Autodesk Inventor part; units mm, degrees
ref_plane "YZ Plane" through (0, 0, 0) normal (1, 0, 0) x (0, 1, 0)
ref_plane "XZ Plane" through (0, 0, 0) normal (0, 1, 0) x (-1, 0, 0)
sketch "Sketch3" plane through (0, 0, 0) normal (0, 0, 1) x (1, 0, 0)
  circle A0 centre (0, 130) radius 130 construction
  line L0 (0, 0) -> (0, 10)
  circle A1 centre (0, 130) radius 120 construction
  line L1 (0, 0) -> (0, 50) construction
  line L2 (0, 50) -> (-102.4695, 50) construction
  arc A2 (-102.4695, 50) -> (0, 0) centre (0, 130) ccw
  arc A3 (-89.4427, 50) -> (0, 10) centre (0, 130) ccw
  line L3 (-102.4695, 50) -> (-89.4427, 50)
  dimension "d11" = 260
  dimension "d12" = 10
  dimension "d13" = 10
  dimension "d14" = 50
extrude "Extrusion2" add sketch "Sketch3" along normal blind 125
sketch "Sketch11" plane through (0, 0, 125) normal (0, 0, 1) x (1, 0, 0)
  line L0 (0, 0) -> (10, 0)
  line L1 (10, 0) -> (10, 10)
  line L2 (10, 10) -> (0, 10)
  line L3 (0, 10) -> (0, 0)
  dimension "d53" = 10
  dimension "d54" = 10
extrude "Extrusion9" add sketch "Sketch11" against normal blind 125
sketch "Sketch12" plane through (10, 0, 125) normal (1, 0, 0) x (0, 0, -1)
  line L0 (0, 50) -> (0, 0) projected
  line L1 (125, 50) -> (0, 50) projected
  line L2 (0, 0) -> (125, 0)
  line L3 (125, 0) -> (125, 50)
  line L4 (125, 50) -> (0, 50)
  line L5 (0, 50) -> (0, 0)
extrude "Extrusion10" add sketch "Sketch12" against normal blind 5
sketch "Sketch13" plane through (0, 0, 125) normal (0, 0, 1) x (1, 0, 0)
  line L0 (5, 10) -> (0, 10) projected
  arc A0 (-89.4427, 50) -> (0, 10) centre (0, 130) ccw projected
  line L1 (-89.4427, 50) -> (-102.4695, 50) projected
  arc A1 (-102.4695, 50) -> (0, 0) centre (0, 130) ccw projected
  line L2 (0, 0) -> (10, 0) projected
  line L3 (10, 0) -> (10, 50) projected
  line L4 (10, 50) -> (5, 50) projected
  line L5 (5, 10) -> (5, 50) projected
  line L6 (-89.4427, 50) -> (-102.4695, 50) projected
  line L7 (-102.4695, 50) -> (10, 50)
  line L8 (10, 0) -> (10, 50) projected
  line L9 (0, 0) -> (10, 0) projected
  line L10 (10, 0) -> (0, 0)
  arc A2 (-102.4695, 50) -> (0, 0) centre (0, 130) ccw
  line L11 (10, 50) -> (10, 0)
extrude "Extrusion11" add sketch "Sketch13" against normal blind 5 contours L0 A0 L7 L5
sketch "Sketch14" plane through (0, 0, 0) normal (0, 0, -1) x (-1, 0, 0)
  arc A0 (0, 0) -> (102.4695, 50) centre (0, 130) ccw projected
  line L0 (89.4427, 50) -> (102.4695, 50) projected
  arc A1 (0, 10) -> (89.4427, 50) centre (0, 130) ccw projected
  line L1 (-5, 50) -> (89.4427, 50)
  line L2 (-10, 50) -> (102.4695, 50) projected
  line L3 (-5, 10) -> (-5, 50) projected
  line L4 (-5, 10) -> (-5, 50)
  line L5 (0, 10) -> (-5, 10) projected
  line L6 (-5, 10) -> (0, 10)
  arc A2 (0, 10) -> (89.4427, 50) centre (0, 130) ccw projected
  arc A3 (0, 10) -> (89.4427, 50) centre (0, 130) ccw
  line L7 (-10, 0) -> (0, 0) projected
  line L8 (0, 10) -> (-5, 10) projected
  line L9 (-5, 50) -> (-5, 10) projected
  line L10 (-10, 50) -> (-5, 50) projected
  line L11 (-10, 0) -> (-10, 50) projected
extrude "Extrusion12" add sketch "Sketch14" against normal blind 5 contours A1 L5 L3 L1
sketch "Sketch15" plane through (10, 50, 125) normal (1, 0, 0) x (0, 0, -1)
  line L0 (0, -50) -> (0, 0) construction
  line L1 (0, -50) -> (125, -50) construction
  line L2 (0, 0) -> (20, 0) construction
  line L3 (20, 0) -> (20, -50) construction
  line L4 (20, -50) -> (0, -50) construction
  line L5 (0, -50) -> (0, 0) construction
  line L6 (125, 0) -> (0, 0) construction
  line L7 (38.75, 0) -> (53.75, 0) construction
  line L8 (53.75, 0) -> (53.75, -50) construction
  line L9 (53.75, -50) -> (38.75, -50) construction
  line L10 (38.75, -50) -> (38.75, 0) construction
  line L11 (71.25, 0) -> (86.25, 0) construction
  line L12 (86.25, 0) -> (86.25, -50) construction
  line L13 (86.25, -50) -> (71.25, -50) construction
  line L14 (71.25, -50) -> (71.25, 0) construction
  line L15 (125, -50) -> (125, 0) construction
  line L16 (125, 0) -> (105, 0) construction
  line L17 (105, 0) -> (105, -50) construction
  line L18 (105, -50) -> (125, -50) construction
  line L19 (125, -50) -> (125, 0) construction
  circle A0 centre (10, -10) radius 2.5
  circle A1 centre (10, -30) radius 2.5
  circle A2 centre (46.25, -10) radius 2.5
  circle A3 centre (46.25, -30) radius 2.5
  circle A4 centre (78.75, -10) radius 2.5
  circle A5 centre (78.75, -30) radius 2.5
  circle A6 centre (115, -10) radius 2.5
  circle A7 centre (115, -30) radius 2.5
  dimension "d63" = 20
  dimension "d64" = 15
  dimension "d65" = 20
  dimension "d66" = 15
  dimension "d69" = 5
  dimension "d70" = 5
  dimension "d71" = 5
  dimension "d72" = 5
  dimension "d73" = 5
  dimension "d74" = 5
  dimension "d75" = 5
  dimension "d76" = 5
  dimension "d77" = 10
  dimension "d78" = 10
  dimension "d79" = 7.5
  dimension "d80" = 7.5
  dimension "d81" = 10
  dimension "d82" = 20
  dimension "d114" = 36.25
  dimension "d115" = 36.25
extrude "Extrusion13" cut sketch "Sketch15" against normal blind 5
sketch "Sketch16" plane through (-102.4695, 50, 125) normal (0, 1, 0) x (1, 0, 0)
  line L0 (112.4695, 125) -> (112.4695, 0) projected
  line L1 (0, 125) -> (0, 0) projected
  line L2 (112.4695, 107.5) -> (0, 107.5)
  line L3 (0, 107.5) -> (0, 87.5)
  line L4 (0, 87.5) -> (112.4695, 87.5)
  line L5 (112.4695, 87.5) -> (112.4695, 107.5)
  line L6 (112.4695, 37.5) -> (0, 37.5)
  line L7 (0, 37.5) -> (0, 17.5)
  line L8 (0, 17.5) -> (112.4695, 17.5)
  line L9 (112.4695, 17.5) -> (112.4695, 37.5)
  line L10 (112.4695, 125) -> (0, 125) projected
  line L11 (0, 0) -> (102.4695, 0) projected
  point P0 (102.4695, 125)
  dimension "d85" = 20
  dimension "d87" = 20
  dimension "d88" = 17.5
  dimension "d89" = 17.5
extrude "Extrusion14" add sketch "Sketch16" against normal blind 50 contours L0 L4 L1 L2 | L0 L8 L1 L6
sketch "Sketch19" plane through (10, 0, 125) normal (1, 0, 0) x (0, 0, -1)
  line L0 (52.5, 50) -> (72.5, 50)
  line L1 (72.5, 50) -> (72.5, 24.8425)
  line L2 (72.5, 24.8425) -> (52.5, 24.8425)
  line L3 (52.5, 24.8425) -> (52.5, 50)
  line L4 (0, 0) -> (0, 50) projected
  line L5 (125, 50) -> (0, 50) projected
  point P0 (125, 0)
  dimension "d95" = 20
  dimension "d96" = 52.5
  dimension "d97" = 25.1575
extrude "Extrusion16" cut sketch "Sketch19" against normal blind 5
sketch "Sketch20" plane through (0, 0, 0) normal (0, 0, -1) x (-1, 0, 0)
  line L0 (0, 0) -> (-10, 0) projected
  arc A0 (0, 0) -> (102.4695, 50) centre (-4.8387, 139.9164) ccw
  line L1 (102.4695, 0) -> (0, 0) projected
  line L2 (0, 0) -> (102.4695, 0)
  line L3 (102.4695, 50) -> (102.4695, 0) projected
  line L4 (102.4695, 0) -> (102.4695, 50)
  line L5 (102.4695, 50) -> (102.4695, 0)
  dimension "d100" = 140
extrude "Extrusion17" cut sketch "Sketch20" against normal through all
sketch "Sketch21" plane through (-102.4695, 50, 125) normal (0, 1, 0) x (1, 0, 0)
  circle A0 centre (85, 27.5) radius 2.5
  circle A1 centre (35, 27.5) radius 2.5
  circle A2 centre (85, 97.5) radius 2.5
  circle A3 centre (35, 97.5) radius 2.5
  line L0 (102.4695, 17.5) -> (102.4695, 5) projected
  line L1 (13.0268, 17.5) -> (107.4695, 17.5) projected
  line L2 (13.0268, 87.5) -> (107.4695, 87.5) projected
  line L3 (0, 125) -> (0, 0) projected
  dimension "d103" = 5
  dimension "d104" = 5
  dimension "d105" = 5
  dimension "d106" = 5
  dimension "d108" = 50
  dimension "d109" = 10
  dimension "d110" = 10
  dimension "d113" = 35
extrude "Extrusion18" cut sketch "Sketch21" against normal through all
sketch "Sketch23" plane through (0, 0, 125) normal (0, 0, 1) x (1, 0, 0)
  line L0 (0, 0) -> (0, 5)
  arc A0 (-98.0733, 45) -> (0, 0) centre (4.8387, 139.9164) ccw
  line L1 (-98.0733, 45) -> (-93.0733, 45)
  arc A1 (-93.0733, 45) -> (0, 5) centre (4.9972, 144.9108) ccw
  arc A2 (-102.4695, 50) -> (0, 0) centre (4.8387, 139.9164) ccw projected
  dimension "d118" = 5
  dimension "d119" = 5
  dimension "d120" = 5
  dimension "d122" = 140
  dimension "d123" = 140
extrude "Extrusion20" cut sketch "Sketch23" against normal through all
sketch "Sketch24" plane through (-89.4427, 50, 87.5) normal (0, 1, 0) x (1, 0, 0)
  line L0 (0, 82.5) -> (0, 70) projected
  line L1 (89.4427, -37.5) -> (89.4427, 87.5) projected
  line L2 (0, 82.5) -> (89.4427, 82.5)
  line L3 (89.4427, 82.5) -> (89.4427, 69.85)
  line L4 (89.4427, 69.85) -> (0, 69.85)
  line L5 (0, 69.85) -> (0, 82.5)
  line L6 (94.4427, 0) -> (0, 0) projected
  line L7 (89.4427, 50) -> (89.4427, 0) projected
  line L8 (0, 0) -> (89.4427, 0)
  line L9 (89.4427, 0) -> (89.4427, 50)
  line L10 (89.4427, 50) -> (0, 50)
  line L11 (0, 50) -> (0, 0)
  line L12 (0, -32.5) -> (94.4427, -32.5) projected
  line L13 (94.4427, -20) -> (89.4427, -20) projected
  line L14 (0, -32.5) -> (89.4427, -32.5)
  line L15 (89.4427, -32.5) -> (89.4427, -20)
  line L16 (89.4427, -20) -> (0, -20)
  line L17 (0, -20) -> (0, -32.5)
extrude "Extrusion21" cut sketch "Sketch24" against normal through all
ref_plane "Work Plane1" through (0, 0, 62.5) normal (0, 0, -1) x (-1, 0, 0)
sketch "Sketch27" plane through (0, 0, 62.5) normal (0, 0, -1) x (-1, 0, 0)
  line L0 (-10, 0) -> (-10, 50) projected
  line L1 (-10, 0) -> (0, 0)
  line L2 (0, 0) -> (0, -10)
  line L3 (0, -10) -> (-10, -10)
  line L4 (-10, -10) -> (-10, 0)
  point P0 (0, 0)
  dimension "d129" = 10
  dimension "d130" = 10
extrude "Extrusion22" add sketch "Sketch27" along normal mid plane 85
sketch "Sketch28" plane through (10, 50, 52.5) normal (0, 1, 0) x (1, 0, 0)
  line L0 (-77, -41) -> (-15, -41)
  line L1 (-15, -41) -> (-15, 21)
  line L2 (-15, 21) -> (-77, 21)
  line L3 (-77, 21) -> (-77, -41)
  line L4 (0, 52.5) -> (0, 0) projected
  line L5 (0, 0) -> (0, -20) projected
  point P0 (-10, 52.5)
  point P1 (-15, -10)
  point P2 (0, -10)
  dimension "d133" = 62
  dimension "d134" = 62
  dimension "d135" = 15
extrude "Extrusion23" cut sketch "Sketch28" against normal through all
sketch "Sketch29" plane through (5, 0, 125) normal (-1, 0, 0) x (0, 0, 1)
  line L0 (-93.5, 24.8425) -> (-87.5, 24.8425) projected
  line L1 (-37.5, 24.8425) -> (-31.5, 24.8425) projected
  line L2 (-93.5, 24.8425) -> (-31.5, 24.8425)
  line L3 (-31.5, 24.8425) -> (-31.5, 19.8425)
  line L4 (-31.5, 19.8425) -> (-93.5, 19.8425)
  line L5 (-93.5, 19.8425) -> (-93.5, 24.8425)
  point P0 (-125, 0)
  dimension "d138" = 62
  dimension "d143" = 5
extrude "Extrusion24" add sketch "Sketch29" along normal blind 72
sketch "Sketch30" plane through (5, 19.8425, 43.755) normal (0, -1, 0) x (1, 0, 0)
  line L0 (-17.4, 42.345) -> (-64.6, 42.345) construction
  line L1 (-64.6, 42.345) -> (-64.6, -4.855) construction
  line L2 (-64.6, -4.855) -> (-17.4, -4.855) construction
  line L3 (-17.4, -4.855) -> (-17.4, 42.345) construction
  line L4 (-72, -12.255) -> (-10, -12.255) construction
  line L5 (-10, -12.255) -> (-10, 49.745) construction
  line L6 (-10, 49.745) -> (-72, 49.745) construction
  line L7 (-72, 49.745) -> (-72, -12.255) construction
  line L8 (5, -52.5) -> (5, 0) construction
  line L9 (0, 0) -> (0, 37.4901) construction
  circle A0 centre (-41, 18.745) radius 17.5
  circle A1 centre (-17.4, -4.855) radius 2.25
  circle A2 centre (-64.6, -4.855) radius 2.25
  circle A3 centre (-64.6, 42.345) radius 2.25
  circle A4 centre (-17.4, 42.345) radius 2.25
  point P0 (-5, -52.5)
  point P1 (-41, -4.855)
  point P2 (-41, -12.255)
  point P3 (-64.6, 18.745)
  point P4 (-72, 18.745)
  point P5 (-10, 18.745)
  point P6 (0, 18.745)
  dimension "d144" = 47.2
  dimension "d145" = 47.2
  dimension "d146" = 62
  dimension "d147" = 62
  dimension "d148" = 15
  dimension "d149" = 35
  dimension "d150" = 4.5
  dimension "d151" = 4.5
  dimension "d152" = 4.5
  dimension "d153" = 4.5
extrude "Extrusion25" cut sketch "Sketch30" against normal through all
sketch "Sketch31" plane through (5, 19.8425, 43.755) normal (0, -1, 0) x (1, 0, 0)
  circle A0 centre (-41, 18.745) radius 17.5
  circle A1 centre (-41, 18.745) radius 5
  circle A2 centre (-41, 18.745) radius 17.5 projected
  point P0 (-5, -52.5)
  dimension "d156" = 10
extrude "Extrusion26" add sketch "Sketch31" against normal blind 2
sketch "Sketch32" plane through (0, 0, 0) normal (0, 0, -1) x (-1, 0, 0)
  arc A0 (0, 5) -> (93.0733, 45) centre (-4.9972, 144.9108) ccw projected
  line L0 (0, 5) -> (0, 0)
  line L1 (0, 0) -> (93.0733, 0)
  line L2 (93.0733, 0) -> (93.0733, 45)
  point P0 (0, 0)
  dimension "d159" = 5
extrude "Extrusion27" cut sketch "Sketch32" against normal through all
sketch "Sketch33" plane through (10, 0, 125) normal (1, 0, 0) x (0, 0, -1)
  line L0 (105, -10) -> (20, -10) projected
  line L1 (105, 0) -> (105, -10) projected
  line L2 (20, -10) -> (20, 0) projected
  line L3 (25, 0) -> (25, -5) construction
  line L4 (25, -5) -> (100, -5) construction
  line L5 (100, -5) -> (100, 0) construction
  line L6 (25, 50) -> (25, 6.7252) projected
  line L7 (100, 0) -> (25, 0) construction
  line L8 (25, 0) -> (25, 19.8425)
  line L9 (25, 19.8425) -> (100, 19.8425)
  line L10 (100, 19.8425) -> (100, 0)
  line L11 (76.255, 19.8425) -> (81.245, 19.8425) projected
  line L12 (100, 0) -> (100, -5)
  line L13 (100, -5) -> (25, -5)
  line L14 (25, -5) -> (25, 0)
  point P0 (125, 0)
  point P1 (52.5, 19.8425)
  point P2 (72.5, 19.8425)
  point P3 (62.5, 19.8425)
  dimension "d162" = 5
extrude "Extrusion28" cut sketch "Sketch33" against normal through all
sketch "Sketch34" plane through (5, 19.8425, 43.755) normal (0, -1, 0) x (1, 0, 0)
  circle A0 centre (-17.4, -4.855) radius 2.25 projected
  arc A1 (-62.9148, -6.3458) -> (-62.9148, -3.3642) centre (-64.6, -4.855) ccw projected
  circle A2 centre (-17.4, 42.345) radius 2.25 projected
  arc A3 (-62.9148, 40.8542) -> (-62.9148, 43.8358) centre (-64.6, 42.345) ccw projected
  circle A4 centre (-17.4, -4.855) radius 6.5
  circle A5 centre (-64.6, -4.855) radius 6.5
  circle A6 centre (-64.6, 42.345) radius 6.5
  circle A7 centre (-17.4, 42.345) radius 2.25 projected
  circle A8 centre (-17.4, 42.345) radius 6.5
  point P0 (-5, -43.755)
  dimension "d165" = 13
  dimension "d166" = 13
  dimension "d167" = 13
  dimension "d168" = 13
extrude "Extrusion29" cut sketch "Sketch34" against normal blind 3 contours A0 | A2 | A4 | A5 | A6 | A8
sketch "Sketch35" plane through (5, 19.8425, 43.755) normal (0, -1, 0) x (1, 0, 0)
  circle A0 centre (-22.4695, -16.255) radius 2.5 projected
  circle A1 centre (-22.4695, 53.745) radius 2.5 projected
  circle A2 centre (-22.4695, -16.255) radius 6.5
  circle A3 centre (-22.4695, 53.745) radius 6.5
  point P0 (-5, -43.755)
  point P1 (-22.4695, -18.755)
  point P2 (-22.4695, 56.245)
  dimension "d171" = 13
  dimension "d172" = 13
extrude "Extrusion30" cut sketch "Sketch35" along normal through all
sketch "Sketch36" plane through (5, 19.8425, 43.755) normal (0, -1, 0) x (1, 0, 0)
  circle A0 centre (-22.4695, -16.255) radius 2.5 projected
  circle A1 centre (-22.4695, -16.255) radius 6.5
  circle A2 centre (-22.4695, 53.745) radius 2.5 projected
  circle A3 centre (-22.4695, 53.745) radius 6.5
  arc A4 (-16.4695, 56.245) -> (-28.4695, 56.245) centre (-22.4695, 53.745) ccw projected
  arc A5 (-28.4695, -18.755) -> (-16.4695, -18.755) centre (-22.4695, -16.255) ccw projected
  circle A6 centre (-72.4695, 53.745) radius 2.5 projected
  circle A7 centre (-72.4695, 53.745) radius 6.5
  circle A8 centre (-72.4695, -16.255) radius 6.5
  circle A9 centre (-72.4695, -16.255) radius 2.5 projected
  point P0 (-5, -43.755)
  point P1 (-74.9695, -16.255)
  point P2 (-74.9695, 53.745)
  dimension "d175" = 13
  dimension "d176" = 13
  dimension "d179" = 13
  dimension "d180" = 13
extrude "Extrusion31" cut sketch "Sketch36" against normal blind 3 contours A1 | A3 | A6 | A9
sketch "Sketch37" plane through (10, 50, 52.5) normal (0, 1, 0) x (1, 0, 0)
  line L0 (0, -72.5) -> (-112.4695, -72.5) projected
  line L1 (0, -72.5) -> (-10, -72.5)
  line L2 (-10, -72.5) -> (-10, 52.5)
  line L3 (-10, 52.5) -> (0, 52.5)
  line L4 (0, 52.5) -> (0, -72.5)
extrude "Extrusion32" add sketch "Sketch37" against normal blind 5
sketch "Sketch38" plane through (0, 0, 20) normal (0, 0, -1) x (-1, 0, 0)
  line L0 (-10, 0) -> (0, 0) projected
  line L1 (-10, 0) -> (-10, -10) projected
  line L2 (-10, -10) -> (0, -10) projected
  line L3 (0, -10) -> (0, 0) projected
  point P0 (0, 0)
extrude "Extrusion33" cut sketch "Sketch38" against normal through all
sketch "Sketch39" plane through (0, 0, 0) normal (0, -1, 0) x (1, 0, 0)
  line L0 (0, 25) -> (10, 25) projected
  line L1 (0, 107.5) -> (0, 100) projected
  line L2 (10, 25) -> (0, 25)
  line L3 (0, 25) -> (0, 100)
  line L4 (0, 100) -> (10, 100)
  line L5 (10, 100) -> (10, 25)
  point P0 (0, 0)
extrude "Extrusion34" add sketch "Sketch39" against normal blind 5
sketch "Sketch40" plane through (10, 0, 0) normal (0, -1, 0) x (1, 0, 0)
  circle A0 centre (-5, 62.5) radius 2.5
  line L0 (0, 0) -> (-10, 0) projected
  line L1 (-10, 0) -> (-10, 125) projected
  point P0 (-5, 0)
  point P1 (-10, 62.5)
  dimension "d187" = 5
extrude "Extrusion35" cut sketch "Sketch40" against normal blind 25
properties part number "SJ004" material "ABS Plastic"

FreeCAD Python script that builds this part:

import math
import FreeCAD as App
import Part
import Sketcher

V = App.Vector


def add_polygon(sketch, points):
    """Adds a closed chain of lines whose ends are joined by coincident constraints."""
    first, n = sketch.GeometryCount, len(points)
    for a, b in zip(points, points[1:] + points[:1]):
        sketch.addGeometry(Part.LineSegment(App.Vector(*a, 0), App.Vector(*b, 0)), False)
    for i in range(n):
        sketch.addConstraint(Sketcher.Constraint("Coincident", first + i, 2, first + (i + 1) % n, 1))

doc = App.newDocument("Part")
body = doc.addObject("PartDesign::Body", "Body")

# Sketch on XY plane
sketch1 = body.newObject("Sketcher::SketchObject", "Sketch")
sketch1.AttachmentSupport = (doc.getObject("XY_Plane"), [""])
sketch1.MapMode = "FlatFace"
sketch1.addGeometry([
    Part.ArcOfCircle(Part.Circle(V(0, 130, 0), V(0, 0, 1), 130), math.radians(-142), math.radians(-90)),
    Part.LineSegment(V(0, 0, 0), V(0, 10, 0)),
    Part.ArcOfCircle(Part.Circle(V(0, 130, 0), V(0, 0, 1), 120), math.radians(-138), math.radians(-90)),
    Part.LineSegment(V(-89, 50, 0), V(-102, 50, 0)),
], False)
sketch1.addConstraint([
    Sketcher.Constraint("Coincident", 0, 2, 1, 1),
    Sketcher.Constraint("Coincident", 1, 2, 2, 2),
    Sketcher.Constraint("Coincident", 2, 1, 3, 1),
    Sketcher.Constraint("Coincident", 3, 2, 0, 1),
    Sketcher.Constraint("Vertical", 1),
    Sketcher.Constraint("Horizontal", 3),
    Sketcher.Constraint("Coincident", 0, 2, -1, 1),
    Sketcher.Constraint("Coincident", 2, 3, 0, 3),
    Sketcher.Constraint("PointOnObject", 0, 3, -2),
    Sketcher.Constraint("Radius", 0, 130.0),
    Sketcher.Constraint("DistanceY", 1, 1, 1, 2, 10.0),
    Sketcher.Constraint("DistanceY", -1, 1, 2, 1, 50.0),
])
pad1 = body.newObject("PartDesign::Pad", "Pad")
pad1.Profile = sketch1
pad1.Length = 125

# Sketch on XY plane
sketch2 = body.newObject("Sketcher::SketchObject", "Sketch001")
sketch2.AttachmentSupport = (doc.getObject("XY_Plane"), [""])
sketch2.MapMode = "FlatFace"
sketch2.AttachmentOffset = App.Placement(V(0, 0, 125), App.Rotation())
add_polygon(sketch2, [(0, 10), (0, 0), (10, 0), (10, 10)])  # lines 0-3
sketch2.addConstraint([
    Sketcher.Constraint("Vertical", 0),
    Sketcher.Constraint("Horizontal", 1),
    Sketcher.Constraint("Vertical", 2),
    Sketcher.Constraint("Horizontal", 3),
    Sketcher.Constraint("Coincident", 0, 2, -1, 1),
    Sketcher.Constraint("Equal", 3, 0),
    Sketcher.Constraint("DistanceX", 1, 1, 1, 2, 10.0),
])
pad2 = body.newObject("PartDesign::Pad", "Pad001")
pad2.Profile = sketch2
pad2.Length = 125
pad2.Reversed = True

# Sketch on YZ plane
sketch3 = body.newObject("Sketcher::SketchObject", "Sketch002")
sketch3.AttachmentSupport = (doc.getObject("YZ_Plane"), [""])
sketch3.MapMode = "FlatFace"
sketch3.AttachmentOffset = App.Placement(V(0, 0, 10), App.Rotation())
add_polygon(sketch3, [(50, 0), (50, 125), (0, 125), (0, 0)])  # lines 0-3
sketch3.addConstraint([
    Sketcher.Constraint("Vertical", 0),
    Sketcher.Constraint("Horizontal", 1),
    Sketcher.Constraint("Vertical", 2),
    Sketcher.Constraint("Horizontal", 3),
    Sketcher.Constraint("Coincident", 2, 2, -1, 1),
    Sketcher.Constraint("DistanceX", 1, 2, 1, 1, 50.0),
    Sketcher.Constraint("DistanceY", 0, 1, 0, 2, 125.0),
])
pad3 = body.newObject("PartDesign::Pad", "Pad002")
pad3.Profile = sketch3
pad3.Length = 5
pad3.Reversed = True

# Sketch on XY plane
sketch4 = body.newObject("Sketcher::SketchObject", "Sketch003")
sketch4.AttachmentSupport = (doc.getObject("XY_Plane"), [""])
sketch4.MapMode = "FlatFace"
sketch4.AttachmentOffset = App.Placement(V(0, 0, 125), App.Rotation())
sketch4.addGeometry([
    Part.LineSegment(V(0, 10, 0), V(5, 10, 0)),
    Part.LineSegment(V(5, 10, 0), V(5, 50, 0)),
    Part.LineSegment(V(5, 50, 0), V(-89, 50, 0)),
    Part.ArcOfCircle(Part.Circle(V(0, 130, 0), V(0, 0, 1), 120), math.radians(-138), math.radians(-90)),
], False)
sketch4.addConstraint([
    Sketcher.Constraint("Coincident", 0, 2, 1, 1),
    Sketcher.Constraint("Coincident", 1, 2, 2, 1),
    Sketcher.Constraint("Coincident", 2, 2, 3, 1),
    Sketcher.Constraint("Tangent", 3, 2, 0, 1),
    Sketcher.Constraint("Horizontal", 0),
    Sketcher.Constraint("Vertical", 1),
    Sketcher.Constraint("Horizontal", 2),
    Sketcher.Constraint("PointOnObject", 3, 3, -2),
    Sketcher.Constraint("Radius", 3, 120.0),
    Sketcher.Constraint("DistanceX", 0, 1, 0, 2, 5.0),
    Sketcher.Constraint("DistanceY", 1, 1, 1, 2, 40.0),
    Sketcher.Constraint("DistanceY", -1, 1, 3, 3, 130.0),
])
pad4 = body.newObject("PartDesign::Pad", "Pad003")
pad4.Profile = sketch4
pad4.Length = 5
pad4.Reversed = True

# Sketch on XY plane
sketch5 = body.newObject("Sketcher::SketchObject", "Sketch004")
sketch5.AttachmentSupport = (doc.getObject("XY_Plane"), [""])
sketch5.MapMode = "FlatFace"
sketch5.addGeometry([
    Part.ArcOfCircle(Part.Circle(V(0, 130, 0), V(0, 0, 1), 120), math.radians(-138), math.radians(-90)),
    Part.LineSegment(V(-89, 50, 0), V(5, 50, 0)),
    Part.LineSegment(V(5, 50, 0), V(5, 10, 0)),
    Part.LineSegment(V(5, 10, 0), V(0, 10, 0)),
], False)
sketch5.addConstraint([
    Sketcher.Constraint("Coincident", 0, 1, 1, 1),
    Sketcher.Constraint("Coincident", 1, 2, 2, 1),
    Sketcher.Constraint("Coincident", 2, 2, 3, 1),
    Sketcher.Constraint("Tangent", 3, 2, 0, 2),
    Sketcher.Constraint("Horizontal", 1),
    Sketcher.Constraint("Vertical", 2),
    Sketcher.Constraint("Horizontal", 3),
    Sketcher.Constraint("PointOnObject", 0, 3, -2),
    Sketcher.Constraint("Radius", 0, 120.0),
    Sketcher.Constraint("DistanceX", 3, 2, 3, 1, 5.0),
    Sketcher.Constraint("DistanceY", 2, 2, 2, 1, 40.0),
    Sketcher.Constraint("DistanceY", -1, 1, 0, 3, 130.0),
])
pad5 = body.newObject("PartDesign::Pad", "Pad004")
pad5.Profile = sketch5
pad5.Length = 5

# Sketch on YZ plane
sketch6 = body.newObject("Sketcher::SketchObject", "Sketch005")
sketch6.AttachmentSupport = (doc.getObject("YZ_Plane"), [""])
sketch6.MapMode = "FlatFace"
sketch6.AttachmentOffset = App.Placement(V(0, 0, 10), App.Rotation())
sketch6.addGeometry([
    Part.Circle(V(40, 115, 0), V(0, 0, 1), 2.5),  # 0
    Part.Circle(V(20, 115, 0), V(0, 0, 1), 2.5),  # 1
    Part.Circle(V(40, 78.8, 0), V(0, 0, 1), 2.5),  # 2
    Part.Circle(V(20, 78.8, 0), V(0, 0, 1), 2.5),  # 3
    Part.Circle(V(40, 46.2, 0), V(0, 0, 1), 2.5),  # 4
    Part.Circle(V(20, 46.2, 0), V(0, 0, 1), 2.5),  # 5
    Part.Circle(V(40, 10, 0), V(0, 0, 1), 2.5),  # 6
    Part.Circle(V(20, 10, 0), V(0, 0, 1), 2.5),  # 7
], False)
sketch6.addConstraint([
    Sketcher.Constraint("Equal", 0, 1),
    Sketcher.Constraint("Equal", 1, 2),
    Sketcher.Constraint("Equal", 2, 3),
    Sketcher.Constraint("Equal", 3, 4),
    Sketcher.Constraint("Equal", 4, 5),
    Sketcher.Constraint("Equal", 5, 6),
    Sketcher.Constraint("Equal", 6, 7),
    Sketcher.Constraint("Horizontal", 0, 3, 1, 3),
    Sketcher.Constraint("Horizontal", 2, 3, 3, 3),
    Sketcher.Constraint("Horizontal", 4, 3, 5, 3),
    Sketcher.Constraint("Horizontal", 6, 3, 7, 3),
    Sketcher.Constraint("Vertical", 0, 3, 2, 3),
    Sketcher.Constraint("Vertical", 1, 3, 3, 3),
    Sketcher.Constraint("Vertical", 2, 3, 4, 3),
    Sketcher.Constraint("Vertical", 3, 3, 5, 3),
    Sketcher.Constraint("Vertical", 4, 3, 6, 3),
    Sketcher.Constraint("Vertical", 5, 3, 7, 3),
    Sketcher.Constraint("Diameter", 0, 5.0),
    Sketcher.Constraint("DistanceX", -1, 1, 1, 3, 20.0),
    Sketcher.Constraint("DistanceY", -1, 1, 6, 3, 10.0),
    Sketcher.Constraint("DistanceX", 1, 3, 0, 3, 20.0),
    Sketcher.Constraint("DistanceY", 2, 3, 0, 3, 36.25),
    Sketcher.Constraint("DistanceY", 6, 3, 4, 3, 36.25),
    Sketcher.Constraint("DistanceY", -1, 1, 0, 3, 115.0),
])
pocket1 = body.newObject("PartDesign::Pocket", "Pocket")
pocket1.Profile = sketch6
pocket1.Length = 5

# Sketch on XZ plane
sketch7 = body.newObject("Sketcher::SketchObject", "Sketch006")
sketch7.AttachmentSupport = (doc.getObject("XZ_Plane"), [""])
sketch7.MapMode = "FlatFace"
sketch7.AttachmentOffset = App.Placement(V(0, 0, -50), App.Rotation())
add_polygon(sketch7, [(10, 38), (10, 18), (-102, 18), (-102, 38)])  # lines 0-3
add_polygon(sketch7, [(10, 108), (10, 88), (-102, 88), (-102, 108)])  # lines 4-7
sketch7.addConstraint([
    Sketcher.Constraint("Vertical", 0),
    Sketcher.Constraint("Horizontal", 1),
    Sketcher.Constraint("Vertical", 2),
    Sketcher.Constraint("Horizontal", 3),
    Sketcher.Constraint("Vertical", 4),
    Sketcher.Constraint("Horizontal", 5),
    Sketcher.Constraint("Vertical", 6),
    Sketcher.Constraint("Horizontal", 7),
    Sketcher.Constraint("Vertical", 3, 2, 4, 2),
    Sketcher.Constraint("Vertical", 2, 2, 5, 2),
    Sketcher.Constraint("Equal", 2, 4),
    Sketcher.Constraint("DistanceY", 0, 2, 0, 1, 20.0),
    Sketcher.Constraint("DistanceY", -1, 1, 0, 2, 17.5),
    Sketcher.Constraint("DistanceX", -1, 1, 0, 2, 10.0),
    Sketcher.Constraint("DistanceY", 3, 2, 4, 2, 50.0),
    Sketcher.Constraint("DistanceX", 1, 2, 1, 1, 112.4695),
])
pad6 = body.newObject("PartDesign::Pad", "Pad005")
pad6.Profile = sketch7
pad6.Length = 50

# Sketch on YZ plane
sketch8 = body.newObject("Sketcher::SketchObject", "Sketch007")
sketch8.AttachmentSupport = (doc.getObject("YZ_Plane"), [""])
sketch8.MapMode = "FlatFace"
sketch8.AttachmentOffset = App.Placement(V(0, 0, 10), App.Rotation())
add_polygon(sketch8, [(50, 52), (50, 72), (25, 72), (25, 52)])  # lines 0-3
sketch8.addConstraint([
    Sketcher.Constraint("Vertical", 0),
    Sketcher.Constraint("Horizontal", 1),
    Sketcher.Constraint("Vertical", 2),
    Sketcher.Constraint("Horizontal", 3),
    Sketcher.Constraint("DistanceY", 0, 1, 0, 2, 20.0),
    Sketcher.Constraint("DistanceY", -1, 1, 2, 2, 52.5),
    Sketcher.Constraint("DistanceX", 1, 2, 1, 1, 25.1575),
    Sketcher.Constraint("DistanceX", -1, 1, 0, 2, 50.0),
])
pocket2 = body.newObject("PartDesign::Pocket", "Pocket001")
pocket2.Profile = sketch8
pocket2.Length = 5

# Sketch on XY plane
sketch9 = body.newObject("Sketcher::SketchObject", "Sketch008")
sketch9.AttachmentSupport = (doc.getObject("XY_Plane"), [""])
sketch9.MapMode = "FlatFace"
sketch9.addGeometry([
    Part.ArcOfCircle(Part.Circle(V(5, 140, 0), V(0, 0, 1), 140), math.radians(-140), math.radians(-92)),
    Part.LineSegment(V(0, 0, 0), V(-102, 0, 0)),
    Part.LineSegment(V(-102, 0, 0), V(-102, 50, 0)),
], False)
sketch9.addConstraint([
    Sketcher.Constraint("Coincident", 0, 2, 1, 1),
    Sketcher.Constraint("Coincident", 1, 2, 2, 1),
    Sketcher.Constraint("Coincident", 2, 2, 0, 1),
    Sketcher.Constraint("Horizontal", 1),
    Sketcher.Constraint("Vertical", 2),
    Sketcher.Constraint("Coincident", 0, 2, -1, 1),
    Sketcher.Constraint("Radius", 0, 140.0),
    Sketcher.Constraint("DistanceY", 2, 1, 2, 2, 50.0),
    Sketcher.Constraint("DistanceX", 1, 2, 1, 1, 102.4695),
])
pocket3 = body.newObject("PartDesign::Pocket", "Pocket002")
pocket3.Profile = sketch9
pocket3.Type = "ThroughAll"
pocket3.Reversed = True

# Sketch on XZ plane
sketch10 = body.newObject("Sketcher::SketchObject", "Sketch009")
sketch10.AttachmentSupport = (doc.getObject("XZ_Plane"), [""])
sketch10.MapMode = "FlatFace"
sketch10.AttachmentOffset = App.Placement(V(0, 0, -50), App.Rotation())
sketch10.addGeometry([
    Part.Circle(V(-17.5, 97.5, 0), V(0, 0, 1), 2.5),
    Part.Circle(V(-67.5, 97.5, 0), V(0, 0, 1), 2.5),
    Part.Circle(V(-17.5, 27.5, 0), V(0, 0, 1), 2.5),
    Part.Circle(V(-67.5, 27.5, 0), V(0, 0, 1), 2.5),
], False)
sketch10.addConstraint([
    Sketcher.Constraint("Equal", 0, 1),
    Sketcher.Constraint("Equal", 1, 2),
    Sketcher.Constraint("Equal", 2, 3),
    Sketcher.Constraint("Horizontal", 0, 3, 1, 3),
    Sketcher.Constraint("Horizontal", 2, 3, 3, 3),
    Sketcher.Constraint("Vertical", 0, 3, 2, 3),
    Sketcher.Constraint("Vertical", 1, 3, 3, 3),
    Sketcher.Constraint("Diameter", 0, 5.0),
    Sketcher.Constraint("DistanceX", 1, 3, 0, 3, 50.0),
    Sketcher.Constraint("DistanceY", 2, 3, 0, 3, 70.0),
    Sketcher.Constraint("DistanceY", -1, 1, 0, 3, 97.5),
    Sketcher.Constraint("DistanceX", 0, 3, -1, 1, 17.4695),
])
pocket4 = body.newObject("PartDesign::Pocket", "Pocket003")
pocket4.Profile = sketch10
pocket4.Type = "ThroughAll"
pocket4.Reversed = True

# Sketch on XY plane
sketch11 = body.newObject("Sketcher::SketchObject", "Sketch010")
sketch11.AttachmentSupport = (doc.getObject("XY_Plane"), [""])
sketch11.MapMode = "FlatFace"
sketch11.AttachmentOffset = App.Placement(V(0, 0, 125), App.Rotation())
sketch11.addGeometry([
    Part.ArcOfCircle(Part.Circle(V(5, 140, 0), V(0, 0, 1), 140), math.radians(-137), math.radians(-92)),
    Part.LineSegment(V(0, 0, 0), V(0, 5, 0)),
    Part.ArcOfCircle(Part.Circle(V(5, 145, 0), V(0, 0, 1), 140), math.radians(-134), math.radians(-92)),
    Part.LineSegment(V(-93, 45, 0), V(-98, 45, 0)),
], False)
sketch11.addConstraint([
    Sketcher.Constraint("Coincident", 0, 2, 1, 1),
    Sketcher.Constraint("Coincident", 1, 2, 2, 2),
    Sketcher.Constraint("Coincident", 2, 1, 3, 1),
    Sketcher.Constraint("Coincident", 3, 2, 0, 1),
    Sketcher.Constraint("Vertical", 1),
    Sketcher.Constraint("Horizontal", 3),
    Sketcher.Constraint("Coincident", 0, 2, -1, 1),
    Sketcher.Constraint("Equal", 0, 2),
    Sketcher.Constraint("Equal", 3, 1),
    Sketcher.Constraint("Radius", 0, 140.0),
    Sketcher.Constraint("DistanceX", 3, 2, 3, 1, 5.0),
    Sketcher.Constraint("DistanceY", -1, 1, 2, 1, 45.0),
    Sketcher.Constraint("DistanceX", 3, 2, 0, 3, 102.912),
])
pocket5 = body.newObject("PartDesign::Pocket", "Pocket004")
pocket5.Profile = sketch11
pocket5.Type = "ThroughAll"

# Sketch on XZ plane
sketch12 = body.newObject("Sketcher::SketchObject", "Sketch011")
sketch12.AttachmentSupport = (doc.getObject("XZ_Plane"), [""])
sketch12.MapMode = "FlatFace"
sketch12.AttachmentOffset = App.Placement(V(0, 0, -50), App.Rotation())
add_polygon(sketch12, [(0, 5), (-89, 5), (-89, 18), (0, 18)])  # lines 0-3
add_polygon(sketch12, [(0, 120), (0, 108), (-89, 108), (-89, 120)])  # lines 4-7
add_polygon(sketch12, [(0, 88), (0, 38), (-89, 38), (-89, 88)])  # lines 8-11
sketch12.addConstraint([
    Sketcher.Constraint("Horizontal", 0),
    Sketcher.Constraint("Vertical", 1),
    Sketcher.Constraint("Horizontal", 2),
    Sketcher.Constraint("Vertical", 3),
    Sketcher.Constraint("Vertical", 4),
    Sketcher.Constraint("Horizontal", 5),
    Sketcher.Constraint("Vertical", 6),
    Sketcher.Constraint("Horizontal", 7),
    Sketcher.Constraint("Vertical", 8),
    Sketcher.Constraint("Horizontal", 9),
    Sketcher.Constraint("Vertical", 10),
    Sketcher.Constraint("Horizontal", 11),
    Sketcher.Constraint("PointOnObject", 2, 2, -2),
    Sketcher.Constraint("PointOnObject", 4, 2, -2),
    Sketcher.Constraint("PointOnObject", 8, 2, -2),
    Sketcher.Constraint("Vertical", 1, 2, 5, 2),
    Sketcher.Constraint("Vertical", 6, 2, 9, 2),
    Sketcher.Constraint("DistanceY", 8, 2, 8, 1, 50.0),
    Sketcher.Constraint("DistanceY", 4, 2, 4, 1, 12.5),
    Sketcher.Constraint("DistanceY", -1, 1, 0, 2, 5.0),
    Sketcher.Constraint("DistanceY", -1, 1, 6, 2, 120.0),
    Sketcher.Constraint("DistanceY", 8, 2, 4, 2, 70.0),
    Sketcher.Constraint("DistanceY", 1, 1, 1, 2, 12.65),
    Sketcher.Constraint("DistanceX", 0, 2, 0, 1, 89.4427),
])
pocket6 = body.newObject("PartDesign::Pocket", "Pocket005")
pocket6.Profile = sketch12
pocket6.Type = "ThroughAll"
pocket6.Reversed = True

# Sketch on XY plane
sketch13 = body.newObject("Sketcher::SketchObject", "Sketch012")
sketch13.AttachmentSupport = (doc.getObject("XY_Plane"), [""])
sketch13.MapMode = "FlatFace"
sketch13.AttachmentOffset = App.Placement(V(0, 0, 62.5), App.Rotation())
add_polygon(sketch13, [(0, 0), (10, 0), (10, -10), (0, -10)])  # lines 0-3
sketch13.addConstraint([
    Sketcher.Constraint("Horizontal", 0),
    Sketcher.Constraint("Vertical", 1),
    Sketcher.Constraint("Horizontal", 2),
    Sketcher.Constraint("Vertical", 3),
    Sketcher.Constraint("Coincident", 3, 2, -1, 1),
    Sketcher.Constraint("Equal", 2, 1),
    Sketcher.Constraint("DistanceX", 0, 1, 0, 2, 10.0),
])
pad7 = body.newObject("PartDesign::Pad", "Pad006")
pad7.Profile = sketch13
pad7.Length = 85
pad7.Midplane = True

# Sketch on XZ plane
sketch14 = body.newObject("Sketcher::SketchObject", "Sketch013")
sketch14.AttachmentSupport = (doc.getObject("XZ_Plane"), [""])
sketch14.MapMode = "FlatFace"
sketch14.AttachmentOffset = App.Placement(V(0, 0, -50), App.Rotation())
add_polygon(sketch14, [(-67, 32), (-67, 94), (-5, 94), (-5, 32)])  # lines 0-3
sketch14.addConstraint([
    Sketcher.Constraint("Vertical", 0),
    Sketcher.Constraint("Horizontal", 1),
    Sketcher.Constraint("Vertical", 2),
    Sketcher.Constraint("Horizontal", 3),
    Sketcher.Constraint("Equal", 3, 0),
    Sketcher.Constraint("DistanceX", 1, 1, 1, 2, 62.0),
    Sketcher.Constraint("DistanceX", 0, 2, -1, 1, 67.0),
    Sketcher.Constraint("DistanceY", -1, 1, 0, 2, 93.5),
])
pocket7 = body.newObject("PartDesign::Pocket", "Pocket006")
pocket7.Profile = sketch14
pocket7.Type = "ThroughAll"
pocket7.Reversed = True

# Sketch on YZ plane
sketch15 = body.newObject("Sketcher::SketchObject", "Sketch014")
sketch15.AttachmentSupport = (doc.getObject("YZ_Plane"), [""])
sketch15.MapMode = "FlatFace"
sketch15.AttachmentOffset = App.Placement(V(0, 0, 5), App.Rotation())
add_polygon(sketch15, [(25, 94), (25, 32), (20, 32), (20, 94)])  # lines 0-3
sketch15.addConstraint([
    Sketcher.Constraint("Vertical", 0),
    Sketcher.Constraint("Horizontal", 1),
    Sketcher.Constraint("Vertical", 2),
    Sketcher.Constraint("Horizontal", 3),
    Sketcher.Constraint("DistanceX", 1, 2, 1, 1, 5.0),
    Sketcher.Constraint("DistanceY", 0, 2, 0, 1, 62.0),
    Sketcher.Constraint("DistanceY", -1, 1, 0, 2, 31.5),
    Sketcher.Constraint("DistanceX", -1, 1, 0, 2, 24.8425),
])
pad8 = body.newObject("PartDesign::Pad", "Pad007")
pad8.Profile = sketch15
pad8.Length = 72
pad8.Reversed = True

# Sketch on XZ plane
sketch16 = body.newObject("Sketcher::SketchObject", "Sketch015")
sketch16.AttachmentSupport = (doc.getObject("XZ_Plane"), [""])
sketch16.MapMode = "FlatFace"
sketch16.AttachmentOffset = App.Placement(V(0, 0, -19.8425), App.Rotation())
sketch16.addGeometry([
    Part.Circle(V(-36, 62.5, 0), V(0, 0, 1), 17.5),  # 0
    Part.Circle(V(-12.4, 38.9, 0), V(0, 0, 1), 2.2),  # 1
    Part.Circle(V(-59.6, 38.9, 0), V(0, 0, 1), 2.2),  # 2
    Part.Circle(V(-59.6, 86.1, 0), V(0, 0, 1), 2.2),  # 3
    Part.Circle(V(-12.4, 86.1, 0), V(0, 0, 1), 2.2),  # 4
], False)
sketch16.addConstraint([
    Sketcher.Constraint("Equal", 1, 2),
    Sketcher.Constraint("Equal", 2, 3),
    Sketcher.Constraint("Equal", 3, 4),
    Sketcher.Constraint("Horizontal", 1, 3, 2, 3),
    Sketcher.Constraint("Horizontal", 3, 3, 4, 3),
    Sketcher.Constraint("Vertical", 2, 3, 3, 3),
    Sketcher.Constraint("Vertical", 1, 3, 4, 3),
    Sketcher.Constraint("Diameter", 0, 35.0),
    Sketcher.Constraint("Diameter", 1, 4.5),
    Sketcher.Constraint("DistanceX", 2, 3, 1, 3, 47.2),
    Sketcher.Constraint("DistanceY", 2, 3, 3, 3, 47.2),
    Sketcher.Constraint("DistanceX", 0, 3, -1, 1, 36.0),
    Sketcher.Constraint("DistanceY", -1, 1, 0, 3, 62.5),
    Sketcher.Constraint("DistanceX", 1, 3, -1, 1, 12.4),
    Sketcher.Constraint("DistanceY", -1, 1, 1, 3, 38.9),
])
pocket8 = body.newObject("PartDesign::Pocket", "Pocket007")
pocket8.Profile = sketch16
pocket8.Type = "ThroughAll"

# Sketch on XZ plane
sketch17 = body.newObject("Sketcher::SketchObject", "Sketch016")
sketch17.AttachmentSupport = (doc.getObject("XZ_Plane"), [""])
sketch17.MapMode = "FlatFace"
sketch17.AttachmentOffset = App.Placement(V(0, 0, -19.8425), App.Rotation())
sketch17.addGeometry([
    Part.Circle(V(-36, 62, 0), V(0, 0, 1), 18),
    Part.Circle(V(-36, 62, 0), V(0, 0, 1), 5),
], False)
sketch17.addConstraint([
    Sketcher.Constraint("Coincident", 1, 3, 0, 3),
    Sketcher.Constraint("Diameter", 1, 10.0),
    Sketcher.Constraint("Diameter", 0, 35.0),
    Sketcher.Constraint("DistanceX", 0, 3, -1, 1, 36.0),
    Sketcher.Constraint("DistanceY", -1, 1, 0, 3, 62.5),
])
pad9 = body.newObject("PartDesign::Pad", "Pad008")
pad9.Profile = sketch17
pad9.Length = 2
pad9.Reversed = True

# Sketch on XY plane
sketch18 = body.newObject("Sketcher::SketchObject", "Sketch017")
sketch18.AttachmentSupport = (doc.getObject("XY_Plane"), [""])
sketch18.MapMode = "FlatFace"
sketch18.addGeometry([
    Part.ArcOfCircle(Part.Circle(V(5, 145, 0), V(0, 0, 1), 140), math.radians(-134), math.radians(-92)),
    Part.LineSegment(V(0, 5, 0), V(0, 0, 0)),
    Part.LineSegment(V(0, 0, 0), V(-93, 0, 0)),
    Part.LineSegment(V(-93, 0, 0), V(-93, 45, 0)),
], False)
sketch18.addConstraint([
    Sketcher.Constraint("Coincident", 0, 2, 1, 1),
    Sketcher.Constraint("Coincident", 1, 2, 2, 1),
    Sketcher.Constraint("Coincident", 2, 2, 3, 1),
    Sketcher.Constraint("Coincident", 3, 2, 0, 1),
    Sketcher.Constraint("Vertical", 1),
    Sketcher.Constraint("Horizontal", 2),
    Sketcher.Constraint("Vertical", 3),
    Sketcher.Constraint("Coincident", 1, 2, -1, 1),
    Sketcher.Constraint("DistanceY", 1, 2, 1, 1, 5.0),
    Sketcher.Constraint("Radius", 0, 140.0),
    Sketcher.Constraint("DistanceY", 3, 1, 3, 2, 45.0),
    Sketcher.Constraint("DistanceX", 2, 2, 2, 1, 93.0733),
])
pocket9 = body.newObject("PartDesign::Pocket", "Pocket008")
pocket9.Profile = sketch18
pocket9.Length = 126
pocket9.Reversed = True

# Sketch on YZ plane
sketch19 = body.newObject("Sketcher::SketchObject", "Sketch018")
sketch19.AttachmentSupport = (doc.getObject("YZ_Plane"), [""])
sketch19.MapMode = "FlatFace"
sketch19.AttachmentOffset = App.Placement(V(0, 0, 10), App.Rotation())
add_polygon(sketch19, [(20, 25), (20, 100), (-5, 100), (-5, 25)])  # lines 0-3
sketch19.addConstraint([
    Sketcher.Constraint("Vertical", 0),
    Sketcher.Constraint("Horizontal", 1),
    Sketcher.Constraint("Vertical", 2),
    Sketcher.Constraint("Horizontal", 3),
    Sketcher.Constraint("DistanceX", 1, 2, -1, 1, 5.0),
    Sketcher.Constraint("DistanceY", 0, 1, 0, 2, 75.0),
    Sketcher.Constraint("DistanceY", -1, 1, 0, 2, 100.0),
    Sketcher.Constraint("DistanceX", 1, 2, 1, 1, 24.8425),
])
pocket10 = body.newObject("PartDesign::Pocket", "Pocket009")
pocket10.Profile = sketch19
pocket10.Type = "ThroughAll"

# Sketch on XZ plane
sketch20 = body.newObject("Sketcher::SketchObject", "Sketch019")
sketch20.AttachmentSupport = (doc.getObject("XZ_Plane"), [""])
sketch20.MapMode = "FlatFace"
sketch20.AttachmentOffset = App.Placement(V(0, 0, -19.8425), App.Rotation())
sketch20.addGeometry([
    Part.Circle(V(-12, 39, 0), V(0, 0, 1), 6),
    Part.Circle(V(-12, 86, 0), V(0, 0, 1), 6),
    Part.Circle(V(-60, 39, 0), V(0, 0, 1), 6),
    Part.Circle(V(-60, 86, 0), V(0, 0, 1), 6),
], False)
sketch20.addConstraint([
    Sketcher.Constraint("Equal", 0, 1),
    Sketcher.Constraint("Equal", 1, 2),
    Sketcher.Constraint("Equal", 2, 3),
    Sketcher.Constraint("Horizontal", 0, 3, 2, 3),
    Sketcher.Constraint("Horizontal", 1, 3, 3, 3),
    Sketcher.Constraint("Vertical", 0, 3, 1, 3),
    Sketcher.Constraint("Vertical", 2, 3, 3, 3),
    Sketcher.Constraint("Diameter", 0, 13.0),
    Sketcher.Constraint("DistanceX", 0, 3, -1, 1, 12.4),
    Sketcher.Constraint("DistanceY", -1, 1, 0, 3, 38.9),
    Sketcher.Constraint("DistanceY", -1, 1, 1, 3, 86.1),
    Sketcher.Constraint("DistanceX", 2, 3, -1, 1, 59.6),
])
pocket11 = body.newObject("PartDesign::Pocket", "Pocket010")
pocket11.Profile = sketch20
pocket11.Length = 3

# Sketch on XZ plane
sketch21 = body.newObject("Sketcher::SketchObject", "Sketch020")
sketch21.AttachmentSupport = (doc.getObject("XZ_Plane"), [""])
sketch21.MapMode = "FlatFace"
sketch21.AttachmentOffset = App.Placement(V(0, 0, -19.8425), App.Rotation())
sketch21.addGeometry([
    Part.Circle(V(-17.5, 27.5, 0), V(0, 0, 1), 6.5),
    Part.Circle(V(-17.5, 27.5, 0), V(0, 0, 1), 2.5),
    Part.Circle(V(-17.5, 97.5, 0), V(0, 0, 1), 6.5),
    Part.Circle(V(-17.5, 97.5, 0), V(0, 0, 1), 2.5),
], False)
sketch21.addConstraint([
    Sketcher.Constraint("Coincident", 1, 3, 0, 3),
    Sketcher.Constraint("Coincident", 3, 3, 2, 3),
    Sketcher.Constraint("Equal", 0, 2),
    Sketcher.Constraint("Equal", 1, 3),
    Sketcher.Constraint("Vertical", 1, 3, 2, 3),
    Sketcher.Constraint("Diameter", 0, 13.0),
    Sketcher.Constraint("Diameter", 1, 5.0),
    Sketcher.Constraint("DistanceY", 0, 3, 2, 3, 70.0),
    Sketcher.Constraint("DistanceY", -1, 1, 0, 3, 27.5),
    Sketcher.Constraint("DistanceX", 0, 3, -1, 1, 17.4695),
])
pocket12 = body.newObject("PartDesign::Pocket", "Pocket011")
pocket12.Profile = sketch21
pocket12.Type = "ThroughAll"
pocket12.Reversed = True

# Sketch on XZ plane
sketch22 = body.newObject("Sketcher::SketchObject", "Sketch021")
sketch22.AttachmentSupport = (doc.getObject("XZ_Plane"), [""])
sketch22.MapMode = "FlatFace"
sketch22.AttachmentOffset = App.Placement(V(0, 0, -19.8425), App.Rotation())
sketch22.addGeometry([
    Part.Circle(V(-17.5, 27.5, 0), V(0, 0, 1), 6.5),  # 0
    Part.Circle(V(-17.5, 27.5, 0), V(0, 0, 1), 2.5),  # 1
    Part.Circle(V(-17.5, 97.5, 0), V(0, 0, 1), 6.5),  # 2
    Part.Circle(V(-17.5, 97.5, 0), V(0, 0, 1), 2.5),  # 3
    Part.Circle(V(-67.5, 97.5, 0), V(0, 0, 1), 2.5),  # 4
    Part.Circle(V(-67.5, 27.5, 0), V(0, 0, 1), 2.5),  # 5
], False)
sketch22.addConstraint([
    Sketcher.Constraint("Coincident", 1, 3, 0, 3),
    Sketcher.Constraint("Coincident", 3, 3, 2, 3),
    Sketcher.Constraint("Equal", 0, 2),
    Sketcher.Constraint("Equal", 1, 3),
    Sketcher.Constraint("Equal", 3, 4),
    Sketcher.Constraint("Equal", 4, 5),
    Sketcher.Constraint("Horizontal", 3, 3, 4, 3),
    Sketcher.Constraint("Horizontal", 1, 3, 5, 3),
    Sketcher.Constraint("Vertical", 1, 3, 2, 3),
    Sketcher.Constraint("Vertical", 4, 3, 5, 3),
    Sketcher.Constraint("Diameter", 0, 13.0),
    Sketcher.Constraint("Diameter", 1, 5.0),
    Sketcher.Constraint("DistanceY", 0, 3, 2, 3, 70.0),
    Sketcher.Constraint("DistanceX", 4, 3, 2, 3, 50.0),
    Sketcher.Constraint("DistanceY", -1, 1, 0, 3, 27.5),
    Sketcher.Constraint("DistanceX", 0, 3, -1, 1, 17.4695),
])
pocket13 = body.newObject("PartDesign::Pocket", "Pocket012")
pocket13.Profile = sketch22
pocket13.Length = 3

# Sketch on XZ plane
sketch23 = body.newObject("Sketcher::SketchObject", "Sketch022")
sketch23.AttachmentSupport = (doc.getObject("XZ_Plane"), [""])
sketch23.MapMode = "FlatFace"
sketch23.AttachmentOffset = App.Placement(V(0, 0, -50), App.Rotation())
add_polygon(sketch23, [(0, 125), (10, 125), (10, 0), (0, 0)])  # lines 0-3
sketch23.addConstraint([
    Sketcher.Constraint("Horizontal", 0),
    Sketcher.Constraint("Vertical", 1),
    Sketcher.Constraint("Horizontal", 2),
    Sketcher.Constraint("Vertical", 3),
    Sketcher.Constraint("Coincident", 2, 2, -1, 1),
    Sketcher.Constraint("DistanceX", 0, 1, 0, 2, 10.0),
    Sketcher.Constraint("DistanceY", 1, 2, 1, 1, 125.0),
])
pad10 = body.newObject("PartDesign::Pad", "Pad009")
pad10.Profile = sketch23
pad10.Length = 5

# Sketch on XY plane
sketch24 = body.newObject("Sketcher::SketchObject", "Sketch023")
sketch24.AttachmentSupport = (doc.getObject("XY_Plane"), [""])
sketch24.MapMode = "FlatFace"
sketch24.AttachmentOffset = App.Placement(V(0, 0, 20), App.Rotation())
add_polygon(sketch24, [(0, 0), (10, 0), (10, -10), (0, -10)])  # lines 0-3
sketch24.addConstraint([
    Sketcher.Constraint("Horizontal", 0),
    Sketcher.Constraint("Vertical", 1),
    Sketcher.Constraint("Horizontal", 2),
    Sketcher.Constraint("Vertical", 3),
    Sketcher.Constraint("Coincident", 3, 2, -1, 1),
    Sketcher.Constraint("Equal", 2, 1),
    Sketcher.Constraint("DistanceX", 0, 1, 0, 2, 10.0),
])
pocket14 = body.newObject("PartDesign::Pocket", "Pocket013")
pocket14.Profile = sketch24
pocket14.Type = "ThroughAll"
pocket14.Reversed = True

# Sketch on XZ plane
sketch25 = body.newObject("Sketcher::SketchObject", "Sketch024")
sketch25.AttachmentSupport = (doc.getObject("XZ_Plane"), [""])
sketch25.MapMode = "FlatFace"
add_polygon(sketch25, [(0, 100), (0, 25), (10, 25), (10, 100)])  # lines 0-3
sketch25.addConstraint([
    Sketcher.Constraint("Vertical", 0),
    Sketcher.Constraint("Horizontal", 1),
    Sketcher.Constraint("Vertical", 2),
    Sketcher.Constraint("Horizontal", 3),
    Sketcher.Constraint("PointOnObject", 0, 2, -2),
    Sketcher.Constraint("DistanceX", 1, 1, 1, 2, 10.0),
    Sketcher.Constraint("DistanceY", 0, 2, 0, 1, 75.0),
    Sketcher.Constraint("DistanceY", -1, 1, 0, 2, 25.0),
])
pad11 = body.newObject("PartDesign::Pad", "Pad010")
pad11.Profile = sketch25
pad11.Length = 5
pad11.Reversed = True

# Sketch on XZ plane
sketch26 = body.newObject("Sketcher::SketchObject", "Sketch025")
sketch26.AttachmentSupport = (doc.getObject("XZ_Plane"), [""])
sketch26.MapMode = "FlatFace"
sketch26.addGeometry(Part.Circle(V(5, 62.5, 0), V(0, 0, 1), 2.5), False)
sketch26.addConstraint([
    Sketcher.Constraint("Diameter", 0, 5.0),
    Sketcher.Constraint("DistanceX", -1, 1, 0, 3, 5.0),
    Sketcher.Constraint("DistanceY", -1, 1, 0, 3, 62.5),
])
pocket15 = body.newObject("PartDesign::Pocket", "Pocket014")
pocket15.Profile = sketch26
pocket15.Length = 25

doc.recompute()
